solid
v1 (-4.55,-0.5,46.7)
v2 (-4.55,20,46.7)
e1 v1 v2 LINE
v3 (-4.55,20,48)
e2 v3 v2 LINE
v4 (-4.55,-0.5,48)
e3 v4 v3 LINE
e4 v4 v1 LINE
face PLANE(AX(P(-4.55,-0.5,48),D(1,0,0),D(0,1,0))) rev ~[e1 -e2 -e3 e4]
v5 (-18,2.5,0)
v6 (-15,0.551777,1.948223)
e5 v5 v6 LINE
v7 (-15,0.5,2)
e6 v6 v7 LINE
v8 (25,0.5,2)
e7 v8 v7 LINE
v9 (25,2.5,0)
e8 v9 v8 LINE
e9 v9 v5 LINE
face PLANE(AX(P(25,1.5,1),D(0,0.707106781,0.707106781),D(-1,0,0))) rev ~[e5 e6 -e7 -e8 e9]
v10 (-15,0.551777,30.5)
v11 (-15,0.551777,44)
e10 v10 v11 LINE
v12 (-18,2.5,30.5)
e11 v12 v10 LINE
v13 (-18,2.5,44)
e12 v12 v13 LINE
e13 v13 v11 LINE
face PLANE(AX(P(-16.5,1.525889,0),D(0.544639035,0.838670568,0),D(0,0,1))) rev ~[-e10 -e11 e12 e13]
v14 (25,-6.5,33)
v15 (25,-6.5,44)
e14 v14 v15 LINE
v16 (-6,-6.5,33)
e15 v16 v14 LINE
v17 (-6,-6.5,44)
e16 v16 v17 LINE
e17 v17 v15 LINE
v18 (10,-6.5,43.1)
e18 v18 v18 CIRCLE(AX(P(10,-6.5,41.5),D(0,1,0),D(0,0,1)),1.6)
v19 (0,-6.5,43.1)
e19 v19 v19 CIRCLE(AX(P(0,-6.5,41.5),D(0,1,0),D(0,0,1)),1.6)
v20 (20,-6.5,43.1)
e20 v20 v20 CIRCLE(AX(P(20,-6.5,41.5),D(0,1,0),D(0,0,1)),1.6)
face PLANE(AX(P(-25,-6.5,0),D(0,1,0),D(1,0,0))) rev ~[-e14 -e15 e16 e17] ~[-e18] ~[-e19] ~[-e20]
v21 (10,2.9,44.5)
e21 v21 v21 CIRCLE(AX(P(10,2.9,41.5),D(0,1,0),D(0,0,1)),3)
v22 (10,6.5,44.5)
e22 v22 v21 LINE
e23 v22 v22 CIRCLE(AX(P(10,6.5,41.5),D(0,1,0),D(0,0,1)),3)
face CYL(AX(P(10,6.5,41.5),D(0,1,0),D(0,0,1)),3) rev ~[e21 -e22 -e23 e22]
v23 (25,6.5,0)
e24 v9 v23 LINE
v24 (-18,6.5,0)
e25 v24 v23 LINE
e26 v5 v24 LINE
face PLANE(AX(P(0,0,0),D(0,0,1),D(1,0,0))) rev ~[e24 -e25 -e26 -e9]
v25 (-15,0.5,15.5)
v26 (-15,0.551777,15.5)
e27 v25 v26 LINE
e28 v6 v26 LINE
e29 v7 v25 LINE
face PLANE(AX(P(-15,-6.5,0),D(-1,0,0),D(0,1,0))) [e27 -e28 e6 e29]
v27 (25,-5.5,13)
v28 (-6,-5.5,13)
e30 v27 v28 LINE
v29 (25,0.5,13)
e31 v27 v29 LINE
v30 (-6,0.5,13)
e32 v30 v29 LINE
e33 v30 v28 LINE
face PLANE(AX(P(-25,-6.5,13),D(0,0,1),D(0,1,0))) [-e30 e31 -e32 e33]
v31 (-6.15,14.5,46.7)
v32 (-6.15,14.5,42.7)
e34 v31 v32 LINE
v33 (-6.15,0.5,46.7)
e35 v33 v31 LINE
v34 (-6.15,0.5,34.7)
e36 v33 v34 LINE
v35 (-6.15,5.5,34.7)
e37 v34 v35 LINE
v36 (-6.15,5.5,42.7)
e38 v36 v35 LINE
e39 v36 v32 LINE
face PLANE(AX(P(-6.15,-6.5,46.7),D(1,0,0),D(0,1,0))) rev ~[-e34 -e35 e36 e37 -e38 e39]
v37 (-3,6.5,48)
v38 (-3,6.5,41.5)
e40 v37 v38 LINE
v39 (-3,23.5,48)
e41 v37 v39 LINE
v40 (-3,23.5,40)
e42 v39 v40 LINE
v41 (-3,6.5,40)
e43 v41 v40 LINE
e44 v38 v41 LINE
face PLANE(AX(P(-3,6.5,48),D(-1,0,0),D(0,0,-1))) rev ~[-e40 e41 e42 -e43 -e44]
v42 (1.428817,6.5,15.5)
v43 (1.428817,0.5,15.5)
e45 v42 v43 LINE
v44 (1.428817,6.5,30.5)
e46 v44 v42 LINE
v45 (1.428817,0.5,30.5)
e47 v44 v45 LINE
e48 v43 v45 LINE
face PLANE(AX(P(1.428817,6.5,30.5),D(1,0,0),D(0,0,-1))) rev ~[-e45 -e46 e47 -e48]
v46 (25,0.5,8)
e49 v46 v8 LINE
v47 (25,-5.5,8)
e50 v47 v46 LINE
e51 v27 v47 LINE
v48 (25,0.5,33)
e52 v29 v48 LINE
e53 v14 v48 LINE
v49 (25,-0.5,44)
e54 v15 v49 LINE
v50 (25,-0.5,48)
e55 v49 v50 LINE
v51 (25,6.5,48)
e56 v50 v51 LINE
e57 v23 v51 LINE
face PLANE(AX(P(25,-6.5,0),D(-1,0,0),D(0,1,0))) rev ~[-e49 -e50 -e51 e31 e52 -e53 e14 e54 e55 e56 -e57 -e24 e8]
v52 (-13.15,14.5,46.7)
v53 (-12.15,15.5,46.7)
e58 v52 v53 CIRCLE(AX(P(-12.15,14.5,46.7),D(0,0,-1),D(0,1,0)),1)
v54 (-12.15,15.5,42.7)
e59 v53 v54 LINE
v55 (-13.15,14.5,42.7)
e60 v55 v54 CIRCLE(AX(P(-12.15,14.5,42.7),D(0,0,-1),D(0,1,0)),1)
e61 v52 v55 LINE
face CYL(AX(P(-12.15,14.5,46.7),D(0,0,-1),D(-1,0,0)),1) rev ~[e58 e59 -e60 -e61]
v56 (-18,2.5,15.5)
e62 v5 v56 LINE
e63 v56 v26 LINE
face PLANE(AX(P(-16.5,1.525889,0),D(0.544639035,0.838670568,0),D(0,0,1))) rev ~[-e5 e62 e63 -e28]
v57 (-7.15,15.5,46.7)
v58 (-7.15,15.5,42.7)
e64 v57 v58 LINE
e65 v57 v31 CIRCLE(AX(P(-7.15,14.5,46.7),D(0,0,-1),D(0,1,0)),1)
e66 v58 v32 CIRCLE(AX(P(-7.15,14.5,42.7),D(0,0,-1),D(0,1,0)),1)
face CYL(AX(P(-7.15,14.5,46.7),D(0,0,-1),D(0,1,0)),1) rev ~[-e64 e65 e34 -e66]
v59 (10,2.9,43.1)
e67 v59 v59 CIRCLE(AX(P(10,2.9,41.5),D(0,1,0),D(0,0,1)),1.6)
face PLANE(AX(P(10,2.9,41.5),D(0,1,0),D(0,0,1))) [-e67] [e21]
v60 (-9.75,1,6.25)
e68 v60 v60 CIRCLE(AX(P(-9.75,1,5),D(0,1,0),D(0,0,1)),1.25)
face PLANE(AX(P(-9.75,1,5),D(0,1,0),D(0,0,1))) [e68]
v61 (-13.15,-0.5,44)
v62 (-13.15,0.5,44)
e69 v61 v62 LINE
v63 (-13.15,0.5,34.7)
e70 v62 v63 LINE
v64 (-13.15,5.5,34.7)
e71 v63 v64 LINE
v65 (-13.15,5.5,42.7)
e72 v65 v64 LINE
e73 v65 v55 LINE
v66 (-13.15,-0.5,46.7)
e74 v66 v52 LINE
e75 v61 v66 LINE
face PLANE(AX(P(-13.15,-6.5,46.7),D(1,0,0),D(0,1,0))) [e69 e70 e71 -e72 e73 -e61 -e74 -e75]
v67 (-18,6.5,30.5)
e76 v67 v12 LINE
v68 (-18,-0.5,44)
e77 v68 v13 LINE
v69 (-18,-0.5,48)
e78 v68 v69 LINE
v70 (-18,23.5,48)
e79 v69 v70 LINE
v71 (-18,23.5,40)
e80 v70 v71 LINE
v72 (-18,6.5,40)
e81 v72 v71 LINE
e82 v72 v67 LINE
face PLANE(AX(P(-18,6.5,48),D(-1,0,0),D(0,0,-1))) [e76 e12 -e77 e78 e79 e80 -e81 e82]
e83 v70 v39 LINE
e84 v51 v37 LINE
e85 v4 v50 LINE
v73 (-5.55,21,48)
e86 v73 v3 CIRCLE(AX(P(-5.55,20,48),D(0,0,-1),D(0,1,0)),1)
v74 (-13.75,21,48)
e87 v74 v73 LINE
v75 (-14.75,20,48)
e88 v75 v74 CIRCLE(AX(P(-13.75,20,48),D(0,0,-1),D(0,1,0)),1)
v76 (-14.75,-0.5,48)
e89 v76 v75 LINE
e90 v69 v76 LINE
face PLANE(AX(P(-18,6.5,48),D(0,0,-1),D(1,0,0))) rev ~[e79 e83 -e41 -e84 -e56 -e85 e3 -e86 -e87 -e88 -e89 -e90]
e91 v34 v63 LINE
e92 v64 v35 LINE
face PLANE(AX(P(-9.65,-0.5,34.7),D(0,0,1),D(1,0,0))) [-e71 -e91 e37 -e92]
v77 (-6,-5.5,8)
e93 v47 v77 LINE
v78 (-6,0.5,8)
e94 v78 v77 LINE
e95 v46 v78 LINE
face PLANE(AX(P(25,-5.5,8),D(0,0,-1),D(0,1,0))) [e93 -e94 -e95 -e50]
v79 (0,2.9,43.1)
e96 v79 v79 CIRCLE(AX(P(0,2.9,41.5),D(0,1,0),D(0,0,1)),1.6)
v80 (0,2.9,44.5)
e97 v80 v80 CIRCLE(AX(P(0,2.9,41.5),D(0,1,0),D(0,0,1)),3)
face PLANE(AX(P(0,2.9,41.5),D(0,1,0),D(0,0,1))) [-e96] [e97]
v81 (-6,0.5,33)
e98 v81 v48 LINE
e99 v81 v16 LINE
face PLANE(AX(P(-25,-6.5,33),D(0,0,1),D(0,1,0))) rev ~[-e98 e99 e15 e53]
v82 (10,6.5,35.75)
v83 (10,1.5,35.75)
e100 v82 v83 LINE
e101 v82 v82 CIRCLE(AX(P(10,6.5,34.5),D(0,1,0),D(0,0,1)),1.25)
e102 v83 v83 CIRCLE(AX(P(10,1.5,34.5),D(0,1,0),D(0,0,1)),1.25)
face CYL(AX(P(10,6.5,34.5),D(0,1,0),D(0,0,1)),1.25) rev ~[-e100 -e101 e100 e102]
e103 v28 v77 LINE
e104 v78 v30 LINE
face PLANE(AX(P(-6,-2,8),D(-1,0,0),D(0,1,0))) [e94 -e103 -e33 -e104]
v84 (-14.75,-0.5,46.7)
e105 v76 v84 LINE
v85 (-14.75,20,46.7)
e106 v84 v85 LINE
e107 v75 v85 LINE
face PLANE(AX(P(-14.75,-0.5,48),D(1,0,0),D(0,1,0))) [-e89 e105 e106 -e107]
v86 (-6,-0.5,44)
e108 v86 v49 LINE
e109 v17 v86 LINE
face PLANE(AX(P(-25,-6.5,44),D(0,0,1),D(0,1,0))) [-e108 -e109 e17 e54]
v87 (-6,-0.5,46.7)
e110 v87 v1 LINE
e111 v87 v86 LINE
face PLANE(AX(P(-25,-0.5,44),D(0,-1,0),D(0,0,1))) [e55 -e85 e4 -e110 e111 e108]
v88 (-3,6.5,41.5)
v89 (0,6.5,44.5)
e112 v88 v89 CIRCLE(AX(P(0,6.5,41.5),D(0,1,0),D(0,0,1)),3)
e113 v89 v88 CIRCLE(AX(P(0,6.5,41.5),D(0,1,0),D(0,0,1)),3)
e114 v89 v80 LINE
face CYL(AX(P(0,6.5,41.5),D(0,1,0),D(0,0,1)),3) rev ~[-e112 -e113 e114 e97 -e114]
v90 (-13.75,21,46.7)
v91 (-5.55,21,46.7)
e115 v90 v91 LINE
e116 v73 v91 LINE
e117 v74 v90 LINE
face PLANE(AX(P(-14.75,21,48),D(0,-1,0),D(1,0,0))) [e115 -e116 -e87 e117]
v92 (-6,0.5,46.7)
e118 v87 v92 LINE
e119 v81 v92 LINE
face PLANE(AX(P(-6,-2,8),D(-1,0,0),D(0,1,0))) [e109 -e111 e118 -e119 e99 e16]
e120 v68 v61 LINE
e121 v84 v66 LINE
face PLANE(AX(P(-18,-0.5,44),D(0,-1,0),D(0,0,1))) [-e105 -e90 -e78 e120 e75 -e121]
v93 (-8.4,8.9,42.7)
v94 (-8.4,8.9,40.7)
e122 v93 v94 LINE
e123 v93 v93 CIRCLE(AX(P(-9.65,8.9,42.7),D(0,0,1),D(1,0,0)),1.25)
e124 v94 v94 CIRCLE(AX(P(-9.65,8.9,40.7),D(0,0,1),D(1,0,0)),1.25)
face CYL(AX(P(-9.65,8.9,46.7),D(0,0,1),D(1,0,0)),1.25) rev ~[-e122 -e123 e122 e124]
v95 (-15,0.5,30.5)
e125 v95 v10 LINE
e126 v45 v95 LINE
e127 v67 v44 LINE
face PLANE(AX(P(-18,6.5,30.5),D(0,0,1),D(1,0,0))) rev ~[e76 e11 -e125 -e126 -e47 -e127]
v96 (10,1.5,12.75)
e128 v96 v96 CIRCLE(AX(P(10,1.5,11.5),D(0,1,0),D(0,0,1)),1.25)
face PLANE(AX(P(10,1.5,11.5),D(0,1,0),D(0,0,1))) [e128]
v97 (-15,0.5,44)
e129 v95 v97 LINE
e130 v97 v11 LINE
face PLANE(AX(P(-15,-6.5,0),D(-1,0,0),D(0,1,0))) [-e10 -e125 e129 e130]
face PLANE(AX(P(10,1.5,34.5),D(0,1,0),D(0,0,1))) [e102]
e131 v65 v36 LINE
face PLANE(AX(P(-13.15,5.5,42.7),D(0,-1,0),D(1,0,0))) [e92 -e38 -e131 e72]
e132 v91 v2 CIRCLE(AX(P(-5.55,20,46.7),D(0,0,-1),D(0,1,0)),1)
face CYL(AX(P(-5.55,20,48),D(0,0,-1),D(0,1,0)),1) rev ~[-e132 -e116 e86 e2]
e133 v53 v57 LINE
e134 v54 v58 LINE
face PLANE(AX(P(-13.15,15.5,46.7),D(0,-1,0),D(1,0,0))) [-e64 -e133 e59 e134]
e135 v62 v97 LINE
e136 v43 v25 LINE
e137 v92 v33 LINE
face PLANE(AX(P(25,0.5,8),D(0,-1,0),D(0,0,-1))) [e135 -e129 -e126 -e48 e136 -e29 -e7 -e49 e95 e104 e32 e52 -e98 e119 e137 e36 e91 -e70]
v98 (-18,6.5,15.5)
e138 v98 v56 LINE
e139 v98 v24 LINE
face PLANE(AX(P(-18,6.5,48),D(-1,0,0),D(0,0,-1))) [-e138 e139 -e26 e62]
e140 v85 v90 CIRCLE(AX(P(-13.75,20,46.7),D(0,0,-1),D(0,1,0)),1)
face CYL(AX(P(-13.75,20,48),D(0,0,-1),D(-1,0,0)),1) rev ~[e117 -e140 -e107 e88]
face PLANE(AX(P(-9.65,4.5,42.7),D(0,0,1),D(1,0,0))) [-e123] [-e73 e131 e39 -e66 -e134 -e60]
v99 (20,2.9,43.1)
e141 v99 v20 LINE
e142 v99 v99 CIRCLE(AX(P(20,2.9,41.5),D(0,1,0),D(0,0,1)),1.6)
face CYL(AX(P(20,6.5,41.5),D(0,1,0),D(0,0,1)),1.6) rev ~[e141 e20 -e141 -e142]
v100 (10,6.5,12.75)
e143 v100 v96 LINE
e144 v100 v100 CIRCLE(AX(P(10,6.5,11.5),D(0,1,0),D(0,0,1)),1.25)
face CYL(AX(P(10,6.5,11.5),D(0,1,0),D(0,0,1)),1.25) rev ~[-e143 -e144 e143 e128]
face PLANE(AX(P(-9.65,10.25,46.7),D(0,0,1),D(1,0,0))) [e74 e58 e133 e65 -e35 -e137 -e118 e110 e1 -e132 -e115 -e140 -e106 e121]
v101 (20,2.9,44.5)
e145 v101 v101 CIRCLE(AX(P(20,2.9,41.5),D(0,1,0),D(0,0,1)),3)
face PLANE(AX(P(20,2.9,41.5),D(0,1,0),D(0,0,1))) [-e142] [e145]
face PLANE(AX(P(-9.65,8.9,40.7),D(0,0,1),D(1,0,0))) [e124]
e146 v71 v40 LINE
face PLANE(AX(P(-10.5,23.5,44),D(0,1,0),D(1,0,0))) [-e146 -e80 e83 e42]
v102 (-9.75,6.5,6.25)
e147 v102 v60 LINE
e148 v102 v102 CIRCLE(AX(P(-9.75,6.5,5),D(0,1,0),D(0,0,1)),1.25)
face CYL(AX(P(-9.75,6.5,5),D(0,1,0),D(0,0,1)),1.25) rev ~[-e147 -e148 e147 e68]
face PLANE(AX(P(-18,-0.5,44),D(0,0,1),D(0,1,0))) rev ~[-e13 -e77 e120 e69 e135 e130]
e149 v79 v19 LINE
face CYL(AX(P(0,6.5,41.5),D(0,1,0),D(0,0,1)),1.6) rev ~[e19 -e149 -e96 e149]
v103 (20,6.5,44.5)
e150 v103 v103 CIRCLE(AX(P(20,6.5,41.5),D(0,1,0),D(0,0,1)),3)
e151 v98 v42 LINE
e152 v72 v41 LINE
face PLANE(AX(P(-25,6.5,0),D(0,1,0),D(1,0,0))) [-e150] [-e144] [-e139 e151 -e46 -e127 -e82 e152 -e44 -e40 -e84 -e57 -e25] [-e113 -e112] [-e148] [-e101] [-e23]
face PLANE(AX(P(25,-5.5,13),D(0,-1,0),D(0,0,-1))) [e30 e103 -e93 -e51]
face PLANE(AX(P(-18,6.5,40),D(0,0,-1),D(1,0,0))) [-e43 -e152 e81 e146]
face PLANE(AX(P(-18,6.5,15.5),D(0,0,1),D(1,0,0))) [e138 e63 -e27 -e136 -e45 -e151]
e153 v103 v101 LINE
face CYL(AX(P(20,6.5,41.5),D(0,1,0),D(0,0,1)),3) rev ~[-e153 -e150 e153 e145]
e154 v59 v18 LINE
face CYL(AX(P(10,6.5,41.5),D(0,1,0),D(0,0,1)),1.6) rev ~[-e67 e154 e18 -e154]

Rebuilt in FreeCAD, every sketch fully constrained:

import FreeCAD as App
import Part
import Sketcher

V = App.Vector
Q = App.Units.Quantity


def edges_at(feature, points):
    """Names of the edges that pass closest to the given points."""
    edges = feature.Shape.Edges
    near = lambda p: min(range(len(edges)), key=lambda i: edges[i].distToShape(Part.Vertex(*p))[0])
    return sorted({f"Edge{near(p) + 1}" for p in points})


def add_polygon(sketch, points):
    """Adds a closed chain of lines whose ends are joined by coincident constraints."""
    first, n = sketch.GeometryCount, len(points)
    for a, b in zip(points, points[1:] + points[:1]):
        sketch.addGeometry(Part.LineSegment(App.Vector(*a, 0), App.Vector(*b, 0)), False)
    for i in range(n):
        sketch.addConstraint(Sketcher.Constraint("Coincident", first + i, 2, first + (i + 1) % n, 1))

doc = App.newDocument("Part")
params = doc.addObject("Spreadsheet::Sheet", "Params")
for row, (alias, value) in enumerate([
    ("sketch1_width", "50 mm"),
    ("sketch1_height", "13 mm"),
    ("pad1_length", "48 mm"),
    ("sketch2_diameter", "3.2 mm"),
    ("sketch3_diameter", "6 mm"),
    ("pocket2_length", "3.6 mm"),
    ("sketch4_width", "6 mm"),
    ("sketch4_height", "4 mm"),
    ("sketch5_width", "7 mm"),
    ("sketch5_height", "20 mm"),
    ("sketch6_width", "1 mm"),
    ("sketch6_height", "13 mm"),
    ("sketch7_width", "6 mm"),
    ("sketch7_height", "8 mm"),
    ("chamfer_size", "2 mm"),
    ("sketch8_width", "10 mm"),
    ("sketch8_height", "9 mm"),
    ("chamfer2_size", "3 mm"),
    ("chamfer2_size2", "1.948223 mm"),
    ("sketch9_width", "9 mm"),
    ("sketch9_height", "2.5 mm"),
    ("sketch10_width", "7 mm"),
    ("sketch10_height", "4 mm"),
    ("sketch11_width", "7 mm"),
    ("sketch11_height", "4 mm"),
    ("pad2_length", "5 mm"),
    ("sketch12_diameter", "2.5 mm"),
    ("pocket10_length", "5 mm"),
    ("sketch13_width", "15 mm"),
    ("sketch13_height", "8 mm"),
    ("pad3_length", "17 mm"),
    ("sketch14_width", "10.2 mm"),
    ("sketch14_height", "21.5 mm"),
    ("pocket11_length", "1.3 mm"),
    ("fillet_radius", "1 mm"),
    ("sketch15_diameter", "2.5 mm"),
    ("pocket12_length", "6 mm"),
    ("sketch16_width", "7 mm"),
    ("sketch16_height", "22 mm"),
    ("pocket13_length", "4 mm"),
    ("sketch17_width", "7 mm"),
    ("sketch17_height", "12 mm"),
    ("pocket14_length", "8 mm"),
    ("fillet2_radius", "1 mm"),
    ("sketch18_height", "15 mm"),
    ("pocket15_length", "8 mm"),
    ("sketch19_diameter", "2.5 mm"),
    ("pocket16_length", "5.5 mm"),
    ("pocket17_length", "9 mm"),
], start=1):
    params.set(f"A{row}", alias)
    params.set(f"B{row}", "=" + value)
    params.setAlias(f"B{row}", alias)

body = doc.addObject("PartDesign::Body", "Body")

sketch1 = body.newObject("Sketcher::SketchObject", "Sketch")
sketch1.AttachmentSupport = (doc.getObject("XY_Plane"), [""])
sketch1.MapMode = "FlatFace"
add_polygon(sketch1, [(-25, 6), (-25, -6), (25, -6), (25, 6)])
sketch1.addConstraint([
    Sketcher.Constraint("Vertical", 0),
    Sketcher.Constraint("Horizontal", 1),
    Sketcher.Constraint("Vertical", 2),
    Sketcher.Constraint("Horizontal", 3),
    Sketcher.Constraint("Symmetric", 0, 2, 2, 2, -1, 1),
    Sketcher.Constraint("DistanceX", 1, 1, 1, 2, Q("50 mm")),
    Sketcher.Constraint("DistanceY", 0, 2, 0, 1, Q("13 mm")),
])
sketch1.setExpression("Constraints[9]", "Params.sketch1_width")
sketch1.setExpression("Constraints[10]", "Params.sketch1_height")
pad1 = body.newObject("PartDesign::Pad", "Pad")
pad1.Profile = sketch1
pad1.setExpression("Length", "Params.pad1_length")

sketch2 = body.newObject("Sketcher::SketchObject", "Sketch001")
sketch2.AttachmentSupport = (doc.getObject("XZ_Plane"), [""])
sketch2.MapMode = "FlatFace"
sketch2.AttachmentOffset = App.Placement(V(0, 0, -6.5), App.Rotation())
sketch2.addGeometry([
    Part.Circle(V(20, 41.5, 0), V(0, 0, 1), 1.6),
    Part.Circle(V(10, 41.5, 0), V(0, 0, 1), 1.6),
    Part.Circle(V(0, 41.5, 0), V(0, 0, 1), 1.6),
], False)
sketch2.addConstraint([
    Sketcher.Constraint("Equal", 0, 1),
    Sketcher.Constraint("Equal", 1, 2),
    Sketcher.Constraint("PointOnObject", 2, 3, -2),
    Sketcher.Constraint("Horizontal", 0, 3, 1, 3),
    Sketcher.Constraint("Horizontal", 1, 3, 2, 3),
    Sketcher.Constraint("Diameter", 0, Q("3.2 mm")),
    Sketcher.Constraint("DistanceX", -1, 1, 0, 3, Q("20 mm")),
    Sketcher.Constraint("DistanceX", -1, 1, 1, 3, Q("10 mm")),
    Sketcher.Constraint("DistanceY", -1, 1, 0, 3, Q("41.5 mm")),
])
sketch2.setExpression("Constraints[5]", "Params.sketch2_diameter")
pocket1 = body.newObject("PartDesign::Pocket", "Pocket")
pocket1.Profile = sketch2
pocket1.Type = "ThroughAll"
pocket1.Reversed = True

sketch3 = body.newObject("Sketcher::SketchObject", "Sketch002")
sketch3.AttachmentSupport = (doc.getObject("XZ_Plane"), [""])
sketch3.MapMode = "FlatFace"
sketch3.AttachmentOffset = App.Placement(V(0, 0, -6.5), App.Rotation())
sketch3.addGeometry([
    Part.Circle(V(20, 41.5, 0), V(0, 0, 1), 3),
    Part.Circle(V(10, 41.5, 0), V(0, 0, 1), 3),
    Part.Circle(V(0, 41.5, 0), V(0, 0, 1), 3),
], False)
sketch3.addConstraint([
    Sketcher.Constraint("Equal", 0, 1),
    Sketcher.Constraint("Equal", 1, 2),
    Sketcher.Constraint("PointOnObject", 2, 3, -2),
    Sketcher.Constraint("Horizontal", 0, 3, 1, 3),
    Sketcher.Constraint("Horizontal", 1, 3, 2, 3),
    Sketcher.Constraint("Diameter", 0, Q("6 mm")),
    Sketcher.Constraint("DistanceX", -1, 1, 0, 3, Q("20 mm")),
    Sketcher.Constraint("DistanceX", -1, 1, 1, 3, Q("10 mm")),
    Sketcher.Constraint("DistanceY", -1, 1, 0, 3, Q("41.5 mm")),
])
sketch3.setExpression("Constraints[5]", "Params.sketch3_diameter")
pocket2 = body.newObject("PartDesign::Pocket", "Pocket001")
pocket2.Profile = sketch3
pocket2.setExpression("Length", "Params.pocket2_length")
pocket2.Reversed = True

sketch4 = body.newObject("Sketcher::SketchObject", "Sketch003")
sketch4.AttachmentSupport = (doc.getObject("YZ_Plane"), [""])
sketch4.MapMode = "FlatFace"
sketch4.AttachmentOffset = App.Placement(V(0, 0, -25), App.Rotation())
add_polygon(sketch4, [(-0.5, 44), (-6.5, 44), (-6.5, 48), (-0.5, 48)])
sketch4.addConstraint([
    Sketcher.Constraint("Horizontal", 0),
    Sketcher.Constraint("Vertical", 1),
    Sketcher.Constraint("Horizontal", 2),
    Sketcher.Constraint("Vertical", 3),
    Sketcher.Constraint("DistanceX", 0, 2, 0, 1, Q("6 mm")),
    Sketcher.Constraint("DistanceY", 1, 1, 1, 2, Q("4 mm")),
    Sketcher.Constraint("DistanceY", -1, 1, 0, 2, Q("44 mm")),
    Sketcher.Constraint("DistanceX", 0, 2, -1, 1, Q("6.5 mm")),
])
sketch4.setExpression("Constraints[8]", "Params.sketch4_width")
sketch4.setExpression("Constraints[9]", "Params.sketch4_height")
pocket3 = body.newObject("PartDesign::Pocket", "Pocket002")
pocket3.Profile = sketch4
pocket3.Type = "ThroughAll"
pocket3.Reversed = True

sketch5 = body.newObject("Sketcher::SketchObject", "Sketch004")
sketch5.AttachmentSupport = (doc.getObject("YZ_Plane"), [""])
sketch5.MapMode = "FlatFace"
sketch5.AttachmentOffset = App.Placement(V(0, 0, -25), App.Rotation())
add_polygon(sketch5, [(0, 13), (-6, 13), (-6, 33), (0, 33)])
sketch5.addConstraint([
    Sketcher.Constraint("Horizontal", 0),
    Sketcher.Constraint("Vertical", 1),
    Sketcher.Constraint("Horizontal", 2),
    Sketcher.Constraint("Vertical", 3),
    Sketcher.Constraint("DistanceX", 0, 2, 0, 1, Q("7 mm")),
    Sketcher.Constraint("DistanceY", 1, 1, 1, 2, Q("20 mm")),
    Sketcher.Constraint("DistanceY", -1, 1, 0, 2, Q("13 mm")),
    Sketcher.Constraint("DistanceX", 0, 2, -1, 1, Q("6.5 mm")),
])
sketch5.setExpression("Constraints[8]", "Params.sketch5_width")
sketch5.setExpression("Constraints[9]", "Params.sketch5_height")
pocket4 = body.newObject("PartDesign::Pocket", "Pocket003")
pocket4.Profile = sketch5
pocket4.Type = "ThroughAll"
pocket4.Reversed = True

sketch6 = body.newObject("Sketcher::SketchObject", "Sketch005")
sketch6.AttachmentSupport = (doc.getObject("YZ_Plane"), [""])
sketch6.MapMode = "FlatFace"
sketch6.AttachmentOffset = App.Placement(V(0, 0, 25), App.Rotation())
add_polygon(sketch6, [(-5.5, 13), (-6.5, 13), (-6.5, 0), (-5.5, 0)])
sketch6.addConstraint([
    Sketcher.Constraint("Horizontal", 0),
    Sketcher.Constraint("Vertical", 1),
    Sketcher.Constraint("Horizontal", 2),
    Sketcher.Constraint("Vertical", 3),
    Sketcher.Constraint("PointOnObject", 1, 2, -1),
    Sketcher.Constraint("DistanceX", 0, 2, 0, 1, Q("1 mm")),
    Sketcher.Constraint("DistanceY", 1, 2, 1, 1, Q("13 mm")),
    Sketcher.Constraint("DistanceX", 0, 2, -1, 1, Q("6.5 mm")),
])
sketch6.setExpression("Constraints[9]", "Params.sketch6_width")
sketch6.setExpression("Constraints[10]", "Params.sketch6_height")
pocket5 = body.newObject("PartDesign::Pocket", "Pocket004")
pocket5.Profile = sketch6
pocket5.Type = "ThroughAll"

sketch7 = body.newObject("Sketcher::SketchObject", "Sketch006")
sketch7.AttachmentSupport = (doc.getObject("YZ_Plane"), [""])
sketch7.MapMode = "FlatFace"
sketch7.AttachmentOffset = App.Placement(V(0, 0, 25), App.Rotation())
add_polygon(sketch7, [(0, 8), (-6, 8), (-6, 0), (0, 0)])
sketch7.addConstraint([
    Sketcher.Constraint("Horizontal", 0),
    Sketcher.Constraint("Vertical", 1),
    Sketcher.Constraint("Horizontal", 2),
    Sketcher.Constraint("Vertical", 3),
    Sketcher.Constraint("PointOnObject", 1, 2, -1),
    Sketcher.Constraint("DistanceX", 0, 2, 0, 1, Q("6 mm")),
    Sketcher.Constraint("DistanceY", 1, 2, 1, 1, Q("8 mm")),
    Sketcher.Constraint("DistanceX", 0, 2, -1, 1, Q("5.5 mm")),
])
sketch7.setExpression("Constraints[9]", "Params.sketch7_width")
sketch7.setExpression("Constraints[10]", "Params.sketch7_height")
pocket6 = body.newObject("PartDesign::Pocket", "Pocket005")
pocket6.Profile = sketch7
pocket6.Type = "ThroughAll"
doc.recompute()

chamfer = body.newObject("PartDesign::Chamfer", "Chamfer")
chamfer.Base = (pocket6, edges_at(pocket6, [(0, 0.5, 0)]))
chamfer.setExpression("Size", "Params.chamfer_size")

sketch8 = body.newObject("Sketcher::SketchObject", "Sketch007")
sketch8.AttachmentSupport = (doc.getObject("XY_Plane"), [""])
sketch8.MapMode = "FlatFace"
add_polygon(sketch8, [(-15, 2), (-15, -6), (-25, -6), (-25, 2)])
sketch8.addConstraint([
    Sketcher.Constraint("Vertical", 0),
    Sketcher.Constraint("Horizontal", 1),
    Sketcher.Constraint("Vertical", 2),
    Sketcher.Constraint("Horizontal", 3),
    Sketcher.Constraint("DistanceX", 1, 2, 1, 1, Q("10 mm")),
    Sketcher.Constraint("DistanceY", 0, 2, 0, 1, Q("9 mm")),
    Sketcher.Constraint("DistanceX", 0, 2, -1, 1, Q("15 mm")),
    Sketcher.Constraint("DistanceY", 0, 2, -1, 1, Q("6.5 mm")),
])
sketch8.setExpression("Constraints[8]", "Params.sketch8_width")
sketch8.setExpression("Constraints[9]", "Params.sketch8_height")
pocket7 = body.newObject("PartDesign::Pocket", "Pocket006")
pocket7.Profile = sketch8
pocket7.Type = "ThroughAll"
pocket7.Reversed = True
doc.recompute()

chamfer2 = body.newObject("PartDesign::Chamfer", "Chamfer001")
chamfer2.Base = (pocket7, edges_at(pocket7, [(-15, 2.5, 24)]))
chamfer2.ChamferType = "Two distances"
chamfer2.setExpression("Size", "Params.chamfer2_size")
chamfer2.setExpression("Size2", "Params.chamfer2_size2")

sketch9 = body.newObject("Sketcher::SketchObject", "Sketch008")
sketch9.AttachmentSupport = (doc.getObject("XY_Plane"), [""])
sketch9.MapMode = "FlatFace"
sketch9.AttachmentOffset = App.Placement(V(0, 0, 8), App.Rotation())
add_polygon(sketch9, [(-6, 0.5), (-6, -2), (-15, -2), (-15, 0.5)])
sketch9.addConstraint([
    Sketcher.Constraint("Vertical", 0),
    Sketcher.Constraint("Horizontal", 1),
    Sketcher.Constraint("Vertical", 2),
    Sketcher.Constraint("Horizontal", 3),
    Sketcher.Constraint("DistanceX", 1, 2, 1, 1, Q("9 mm")),
    Sketcher.Constraint("DistanceY", 0, 2, 0, 1, Q("2.5 mm")),
    Sketcher.Constraint("DistanceX", 0, 2, -1, 1, Q("6 mm")),
    Sketcher.Constraint("DistanceY", 0, 2, -1, 1, Q("2 mm")),
])
sketch9.setExpression("Constraints[8]", "Params.sketch9_width")
sketch9.setExpression("Constraints[9]", "Params.sketch9_height")
pocket8 = body.newObject("PartDesign::Pocket", "Pocket007")
pocket8.Profile = sketch9
pocket8.Type = "ThroughAll"
pocket8.Reversed = True

sketch10 = body.newObject("Sketcher::SketchObject", "Sketch009")
sketch10.AttachmentSupport = (doc.getObject("XY_Plane"), [""])
sketch10.MapMode = "FlatFace"
add_polygon(sketch10, [(-18, 6.5), (-18, 2.5), (-25, 2.5), (-25, 6.5)])
sketch10.addConstraint([
    Sketcher.Constraint("Vertical", 0),
    Sketcher.Constraint("Horizontal", 1),
    Sketcher.Constraint("Vertical", 2),
    Sketcher.Constraint("Horizontal", 3),
    Sketcher.Constraint("DistanceX", 1, 2, 1, 1, Q("7 mm")),
    Sketcher.Constraint("DistanceY", 0, 2, 0, 1, Q("4 mm")),
    Sketcher.Constraint("DistanceX", 0, 2, -1, 1, Q("18 mm")),
    Sketcher.Constraint("DistanceY", -1, 1, 0, 2, Q("2.5 mm")),
])
sketch10.setExpression("Constraints[8]", "Params.sketch10_width")
sketch10.setExpression("Constraints[9]", "Params.sketch10_height")
pocket9 = body.newObject("PartDesign::Pocket", "Pocket008")
pocket9.Profile = sketch10
pocket9.Type = "ThroughAll"
pocket9.Reversed = True

sketch11 = body.newObject("Sketcher::SketchObject", "Sketch010")
sketch11.AttachmentSupport = (doc.getObject("YZ_Plane"), [""])
sketch11.MapMode = "FlatFace"
sketch11.AttachmentOffset = App.Placement(V(0, 0, -18), App.Rotation())
add_polygon(sketch11, [(6.5, 44), (-0.5, 44), (-0.5, 48), (6.5, 48)])
sketch11.addConstraint([
    Sketcher.Constraint("Horizontal", 0),
    Sketcher.Constraint("Vertical", 1),
    Sketcher.Constraint("Horizontal", 2),
    Sketcher.Constraint("Vertical", 3),
    Sketcher.Constraint("DistanceX", 0, 2, 0, 1, Q("7 mm")),
    Sketcher.Constraint("DistanceY", 1, 1, 1, 2, Q("4 mm")),
    Sketcher.Constraint("DistanceY", -1, 1, 0, 2, Q("44 mm")),
    Sketcher.Constraint("DistanceX", 0, 2, -1, 1, Q("0.5 mm")),
])
sketch11.setExpression("Constraints[8]", "Params.sketch11_width")
sketch11.setExpression("Constraints[9]", "Params.sketch11_height")
pad2 = body.newObject("PartDesign::Pad", "Pad001")
pad2.Profile = sketch11
pad2.setExpression("Length", "Params.pad2_length")

sketch12 = body.newObject("Sketcher::SketchObject", "Sketch011")
sketch12.AttachmentSupport = (doc.getObject("XZ_Plane"), [""])
sketch12.MapMode = "FlatFace"
sketch12.AttachmentOffset = App.Placement(V(0, 0, -6.5), App.Rotation())
sketch12.addGeometry([
    Part.Circle(V(10, 34.5, 0), V(0, 0, 1), 1.2),
    Part.Circle(V(10, 11.5, 0), V(0, 0, 1), 1.2),
], False)
sketch12.addConstraint([
    Sketcher.Constraint("Equal", 0, 1),
    Sketcher.Constraint("Vertical", 0, 3, 1, 3),
    Sketcher.Constraint("Diameter", 0, Q("2.5 mm")),
    Sketcher.Constraint("DistanceX", -1, 1, 0, 3, Q("10 mm")),
    Sketcher.Constraint("DistanceY", 1, 3, 0, 3, Q("23 mm")),
    Sketcher.Constraint("DistanceY", -1, 1, 0, 3, Q("34.5 mm")),
])
sketch12.setExpression("Constraints[2]", "Params.sketch12_diameter")
pocket10 = body.newObject("PartDesign::Pocket", "Pocket009")
pocket10.Profile = sketch12
pocket10.setExpression("Length", "Params.pocket10_length")
pocket10.Reversed = True

sketch13 = body.newObject("Sketcher::SketchObject", "Sketch012")
sketch13.AttachmentSupport = (doc.getObject("XZ_Plane"), [""])
sketch13.MapMode = "FlatFace"
sketch13.AttachmentOffset = App.Placement(V(0, 0, -6.5), App.Rotation())
add_polygon(sketch13, [(-18, 40), (-18, 48), (-3, 48), (-3, 40)])
sketch13.addConstraint([
    Sketcher.Constraint("Vertical", 0),
    Sketcher.Constraint("Horizontal", 1),
    Sketcher.Constraint("Vertical", 2),
    Sketcher.Constraint("Horizontal", 3),
    Sketcher.Constraint("DistanceX", 1, 1, 1, 2, Q("15 mm")),
    Sketcher.Constraint("DistanceY", 0, 1, 0, 2, Q("8 mm")),
    Sketcher.Constraint("DistanceX", 0, 2, -1, 1, Q("18 mm")),
    Sketcher.Constraint("DistanceY", -1, 1, 0, 2, Q("48 mm")),
])
sketch13.setExpression("Constraints[8]", "Params.sketch13_width")
sketch13.setExpression("Constraints[9]", "Params.sketch13_height")
pad3 = body.newObject("PartDesign::Pad", "Pad002")
pad3.Profile = sketch13
pad3.setExpression("Length", "Params.pad3_length")
pad3.Reversed = True

sketch14 = body.newObject("Sketcher::SketchObject", "Sketch013")
sketch14.AttachmentSupport = (doc.getObject("XY_Plane"), [""])
sketch14.MapMode = "FlatFace"
sketch14.AttachmentOffset = App.Placement(V(0, 0, 48), App.Rotation())
add_polygon(sketch14, [(-15, 21), (-15, 0), (-5, 0), (-5, 21)])
sketch14.addConstraint([
    Sketcher.Constraint("Vertical", 0),
    Sketcher.Constraint("Horizontal", 1),
    Sketcher.Constraint("Vertical", 2),
    Sketcher.Constraint("Horizontal", 3),
    Sketcher.Constraint("DistanceX", 1, 1, 1, 2, Q("10.2 mm")),
    Sketcher.Constraint("DistanceY", 0, 2, 0, 1, Q("21.5 mm")),
    Sketcher.Constraint("DistanceY", -1, 1, 2, 2, Q("21 mm")),
    Sketcher.Constraint("DistanceX", 0, 2, -1, 1, Q("14.75 mm")),
])
sketch14.setExpression("Constraints[8]", "Params.sketch14_width")
sketch14.setExpression("Constraints[9]", "Params.sketch14_height")
pocket11 = body.newObject("PartDesign::Pocket", "Pocket010")
pocket11.Profile = sketch14
pocket11.setExpression("Length", "Params.pocket11_length")
doc.recompute()

fillet = body.newObject("PartDesign::Fillet", "Fillet")
fillet.Base = (pocket11, edges_at(pocket11, [(-14.75, 21, 47.35), (-4.55, 21, 47.35)]))
fillet.setExpression("Radius", "Params.fillet_radius")

sketch15 = body.newObject("Sketcher::SketchObject", "Sketch014")
sketch15.AttachmentSupport = (doc.getObject("XY_Plane"), [""])
sketch15.MapMode = "FlatFace"
sketch15.AttachmentOffset = App.Placement(V(0, 0, 46.7), App.Rotation())
sketch15.addGeometry(Part.Circle(V(-9.7, 8.9, 0), V(0, 0, 1), 1.2), False)
sketch15.addConstraint([
    Sketcher.Constraint("Diameter", 0, Q("2.5 mm")),
    Sketcher.Constraint("DistanceY", -1, 1, 0, 3, Q("8.9 mm")),
    Sketcher.Constraint("DistanceX", 0, 3, -1, 1, Q("9.65 mm")),
])
sketch15.setExpression("Constraints[0]", "Params.sketch15_diameter")
pocket12 = body.newObject("PartDesign::Pocket", "Pocket011")
pocket12.Profile = sketch15
pocket12.setExpression("Length", "Params.pocket12_length")

sketch16 = body.newObject("Sketcher::SketchObject", "Sketch015")
sketch16.AttachmentSupport = (doc.getObject("XY_Plane"), [""])
sketch16.MapMode = "FlatFace"
sketch16.AttachmentOffset = App.Placement(V(0, 0, 46.7), App.Rotation())
add_polygon(sketch16, [(-13, 16), (-13, -6), (-6, -6), (-6, 16)])
sketch16.addConstraint([
    Sketcher.Constraint("Vertical", 0),
    Sketcher.Constraint("Horizontal", 1),
    Sketcher.Constraint("Vertical", 2),
    Sketcher.Constraint("Horizontal", 3),
    Sketcher.Constraint("DistanceX", 1, 1, 1, 2, Q("7 mm")),
    Sketcher.Constraint("DistanceY", 0, 2, 0, 1, Q("22 mm")),
    Sketcher.Constraint("DistanceY", 0, 2, -1, 1, Q("6.5 mm")),
    Sketcher.Constraint("DistanceX", 0, 2, -1, 1, Q("13.15 mm")),
])
sketch16.setExpression("Constraints[8]", "Params.sketch16_width")
sketch16.setExpression("Constraints[9]", "Params.sketch16_height")
pocket13 = body.newObject("PartDesign::Pocket", "Pocket012")
pocket13.Profile = sketch16
pocket13.setExpression("Length", "Params.pocket13_length")

sketch17 = body.newObject("Sketcher::SketchObject", "Sketch016")
sketch17.AttachmentSupport = (doc.getObject("XY_Plane"), [""])
sketch17.MapMode = "FlatFace"
sketch17.AttachmentOffset = App.Placement(V(0, 0, 42.7), App.Rotation())
add_polygon(sketch17, [(-13, 6), (-13, -6), (-6, -6), (-6, 6)])
sketch17.addConstraint([
    Sketcher.Constraint("Vertical", 0),
    Sketcher.Constraint("Horizontal", 1),
    Sketcher.Constraint("Vertical", 2),
    Sketcher.Constraint("Horizontal", 3),
    Sketcher.Constraint("DistanceX", 1, 1, 1, 2, Q("7 mm")),
    Sketcher.Constraint("DistanceY", 0, 2, 0, 1, Q("12 mm")),
    Sketcher.Constraint("DistanceY", 0, 2, -1, 1, Q("6.5 mm")),
    Sketcher.Constraint("DistanceX", 0, 2, -1, 1, Q("13.15 mm")),
])
sketch17.setExpression("Constraints[8]", "Params.sketch17_width")
sketch17.setExpression("Constraints[9]", "Params.sketch17_height")
pocket14 = body.newObject("PartDesign::Pocket", "Pocket013")
pocket14.Profile = sketch17
pocket14.setExpression("Length", "Params.pocket14_length")
doc.recompute()

fillet2 = body.newObject("PartDesign::Fillet", "Fillet001")
fillet2.Base = (pocket14, edges_at(pocket14, [(-6.15, 15.5, 44.7), (-13.15, 15.5, 44.7)]))
fillet2.setExpression("Radius", "Params.fillet2_radius")

sketch18 = body.newObject("Sketcher::SketchObject", "Sketch017")
sketch18.AttachmentSupport = (doc.getObject("XZ_Plane"), [""])
sketch18.MapMode = "FlatFace"
sketch18.AttachmentOffset = App.Placement(V(0, 0, -6.5), App.Rotation())
add_polygon(sketch18, [(-18, 16), (-18, 30), (1, 30), (1, 16)])
sketch18.addConstraint([
    Sketcher.Constraint("Vertical", 0),
    Sketcher.Constraint("Horizontal", 1),
    Sketcher.Constraint("Vertical", 2),
    Sketcher.Constraint("Horizontal", 3),
    Sketcher.Constraint("DistanceY", 0, 1, 0, 2, Q("15 mm")),
    Sketcher.Constraint("DistanceX", 0, 2, -1, 1, Q("18 mm")),
    Sketcher.Constraint("DistanceY", -1, 1, 0, 2, Q("30.5 mm")),
    Sketcher.Constraint("DistanceX", 1, 1, 1, 2, Q("19.428817 mm")),
])
sketch18.setExpression("Constraints[8]", "Params.sketch18_height")
pocket15 = body.newObject("PartDesign::Pocket", "Pocket014")
pocket15.Profile = sketch18
pocket15.setExpression("Length", "Params.pocket15_length")
pocket15.Reversed = True

sketch19 = body.newObject("Sketcher::SketchObject", "Sketch018")
sketch19.AttachmentSupport = (doc.getObject("XZ_Plane"), [""])
sketch19.MapMode = "FlatFace"
sketch19.AttachmentOffset = App.Placement(V(0, 0, -6.5), App.Rotation())
sketch19.addGeometry(Part.Circle(V(-9.8, 5, 0), V(0, 0, 1), 1.2), False)
sketch19.addConstraint([
    Sketcher.Constraint("Diameter", 0, Q("2.5 mm")),
    Sketcher.Constraint("DistanceY", -1, 1, 0, 3, Q("5 mm")),
    Sketcher.Constraint("DistanceX", 0, 3, -1, 1, Q("9.75 mm")),
])
sketch19.setExpression("Constraints[0]", "Params.sketch19_diameter")
pocket16 = body.newObject("PartDesign::Pocket", "Pocket015")
pocket16.Profile = sketch19
pocket16.setExpression("Length", "Params.pocket16_length")
pocket16.Reversed = True

sketch20 = body.newObject("Sketcher::SketchObject", "Sketch019")
sketch20.AttachmentSupport = (doc.getObject("YZ_Plane"), [""])
sketch20.MapMode = "FlatFace"
sketch20.AttachmentOffset = App.Placement(V(0, 0, -15), App.Rotation())
add_polygon(sketch20, [(-1, 1), (-7, 1), (-7, 46), (-1, 46)])
sketch20.addConstraint([
    Sketcher.Constraint("Horizontal", 0),
    Sketcher.Constraint("Vertical", 1),
    Sketcher.Constraint("Horizontal", 2),
    Sketcher.Constraint("Vertical", 3),
    Sketcher.Constraint("DistanceX", 0, 2, 0, 1, Q("5.805305 mm")),
    Sketcher.Constraint("DistanceY", 1, 1, 1, 2, Q("45.087872 mm")),
    Sketcher.Constraint("DistanceX", 0, 2, -1, 1, Q("7.101758 mm")),
    Sketcher.Constraint("DistanceY", -1, 1, 0, 2, Q("1.310931 mm")),
])
pocket17 = body.newObject("PartDesign::Pocket", "Pocket016")
pocket17.Profile = sketch20
pocket17.setExpression("Length", "Params.pocket17_length")
pocket17.Reversed = True

doc.recompute()
